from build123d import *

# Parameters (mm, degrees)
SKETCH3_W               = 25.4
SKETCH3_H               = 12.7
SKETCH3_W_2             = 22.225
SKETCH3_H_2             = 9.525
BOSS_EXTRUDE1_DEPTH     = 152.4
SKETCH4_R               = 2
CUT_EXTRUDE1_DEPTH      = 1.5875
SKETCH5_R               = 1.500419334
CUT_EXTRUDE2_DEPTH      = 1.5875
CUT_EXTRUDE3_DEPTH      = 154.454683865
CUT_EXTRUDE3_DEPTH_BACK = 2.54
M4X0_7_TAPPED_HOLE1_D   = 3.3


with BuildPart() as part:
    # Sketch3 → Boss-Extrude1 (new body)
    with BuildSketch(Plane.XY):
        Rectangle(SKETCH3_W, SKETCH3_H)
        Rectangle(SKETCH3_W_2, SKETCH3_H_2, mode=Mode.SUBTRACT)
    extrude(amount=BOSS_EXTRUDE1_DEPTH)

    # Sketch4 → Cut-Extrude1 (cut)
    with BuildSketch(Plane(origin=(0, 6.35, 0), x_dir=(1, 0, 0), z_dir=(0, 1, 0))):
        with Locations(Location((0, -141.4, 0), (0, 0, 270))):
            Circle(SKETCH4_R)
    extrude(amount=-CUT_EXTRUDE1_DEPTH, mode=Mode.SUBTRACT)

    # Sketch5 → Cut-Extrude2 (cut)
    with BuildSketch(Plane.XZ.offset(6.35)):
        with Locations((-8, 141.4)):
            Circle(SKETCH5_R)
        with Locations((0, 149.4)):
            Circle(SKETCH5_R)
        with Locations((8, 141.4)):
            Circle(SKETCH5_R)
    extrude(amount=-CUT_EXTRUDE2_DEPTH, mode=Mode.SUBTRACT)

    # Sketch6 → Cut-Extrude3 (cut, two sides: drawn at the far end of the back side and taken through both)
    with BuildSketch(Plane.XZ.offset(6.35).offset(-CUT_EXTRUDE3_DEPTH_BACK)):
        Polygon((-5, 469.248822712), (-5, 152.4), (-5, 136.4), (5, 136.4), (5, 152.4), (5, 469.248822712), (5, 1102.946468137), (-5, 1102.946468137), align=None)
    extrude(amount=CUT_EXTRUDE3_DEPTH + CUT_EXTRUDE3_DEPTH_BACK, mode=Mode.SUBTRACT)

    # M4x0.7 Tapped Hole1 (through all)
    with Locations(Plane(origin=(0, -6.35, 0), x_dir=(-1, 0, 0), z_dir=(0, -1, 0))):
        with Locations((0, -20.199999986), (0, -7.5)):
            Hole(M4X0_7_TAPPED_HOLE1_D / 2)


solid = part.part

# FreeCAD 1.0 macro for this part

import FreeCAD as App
import Part
import Sketcher

V = App.Vector
Q = App.Units.Quantity


def add_polygon(sketch, points):
    """Adds a closed chain of lines whose ends are joined by coincident constraints."""
    first, n = sketch.GeometryCount, len(points)
    for a, b in zip(points, points[1:] + points[:1]):
        sketch.addGeometry(Part.LineSegment(App.Vector(*a, 0), App.Vector(*b, 0)), False)
    for i in range(n):
        sketch.addConstraint(Sketcher.Constraint("Coincident", first + i, 2, first + (i + 1) % n, 1))

doc = App.newDocument("Part")
body = doc.addObject("PartDesign::Body", "Body")

# Sketch on XY plane
sketch1 = body.newObject("Sketcher::SketchObject", "Sketch")
sketch1.AttachmentSupport = (doc.getObject("XY_Plane"), [""])
sketch1.MapMode = "FlatFace"
add_polygon(sketch1, [(-12.7, 6.35), (-12.7, -6.35), (12.7, -6.35), (12.7, 6.35)])  # lines 0-3
add_polygon(sketch1, [(11.1125, -4.7625), (-11.1125, -4.7625), (-11.1125, 4.7625), (11.1125, 4.7625)])  # lines 4-7
sketch1.addConstraint(Sketcher.Constraint("Vertical", 0))
sketch1.addConstraint(Sketcher.Constraint("Horizontal", 1))
sketch1.addConstraint(Sketcher.Constraint("Vertical", 2))
sketch1.addConstraint(Sketcher.Constraint("Horizontal", 3))
sketch1.addConstraint(Sketcher.Constraint("Horizontal", 4))
sketch1.addConstraint(Sketcher.Constraint("Vertical", 5))
sketch1.addConstraint(Sketcher.Constraint("Horizontal", 6))
sketch1.addConstraint(Sketcher.Constraint("Vertical", 7))
sketch1.addConstraint(Sketcher.Constraint("Symmetric", 0, 2, 2, 2, -1, 1))
sketch1.addConstraint(Sketcher.Constraint("Symmetric", 4, 2, 6, 2, -1, 1))
sketch1.addConstraint(Sketcher.Constraint("DistanceX", 1, 1, 1, 2, Q("1 in")))
sketch1.addConstraint(Sketcher.Constraint("DistanceY", 0, 2, 0, 1, Q("0.5 in")))
sketch1.addConstraint(Sketcher.Constraint("DistanceX", 4, 2, 4, 1, Q("0.875 in")))
sketch1.addConstraint(Sketcher.Constraint("DistanceY", 5, 1, 5, 2, Q("0.375 in")))
pad1 = body.newObject("PartDesign::Pad", "Pad")
pad1.Profile = sketch1
pad1.Length = Q("6 in")

# Sketch on XZ plane
sketch2 = body.newObject("Sketcher::SketchObject", "Sketch001")
sketch2.AttachmentSupport = (doc.getObject("XZ_Plane"), [""])
sketch2.MapMode = "FlatFace"
sketch2.AttachmentOffset = App.Placement(V(0, 0, -0.25 * 25.4), App.Rotation())
sketch2.addGeometry(Part.Circle(V(0, 141.4, 0), V(0, 0, 1), 2), False)
sketch2.addConstraint(Sketcher.Constraint("PointOnObject", 0, 3, -2))
sketch2.addConstraint(Sketcher.Constraint("Diameter", 0, Q("4 mm")))
sketch2.addConstraint(Sketcher.Constraint("DistanceY", -1, 1, 0, 3, Q("141.4 mm")))
pocket1 = body.newObject("PartDesign::Pocket", "Pocket")
pocket1.Profile = sketch2
pocket1.Length = Q("0.0625 in")
pocket1.Reversed = True

# Sketch on XZ plane
sketch3 = body.newObject("Sketcher::SketchObject", "Sketch002")
sketch3.AttachmentSupport = (doc.getObject("XZ_Plane"), [""])
sketch3.MapMode = "FlatFace"
sketch3.AttachmentOffset = App.Placement(V(0, 0, 0.25 * 25.4), App.Rotation())
sketch3.addGeometry(Part.Circle(V(-8, 141.4, 0), V(0, 0, 1), 1.500419), False)
sketch3.addGeometry(Part.Circle(V(0, 149.4, 0), V(0, 0, 1), 1.500419), False)
sketch3.addGeometry(Part.Circle(V(8, 141.4, 0), V(0, 0, 1), 1.500419), False)
sketch3.addConstraint(Sketcher.Constraint("Equal", 0, 1))
sketch3.addConstraint(Sketcher.Constraint("Equal", 1, 2))
sketch3.addConstraint(Sketcher.Constraint("Symmetric", 0, 3, 2, 3, -2))
sketch3.addConstraint(Sketcher.Constraint("PointOnObject", 1, 3, -2))
sketch3.addConstraint(Sketcher.Constraint("Diameter", 0, Q("3.000839 mm")))
sketch3.addConstraint(Sketcher.Constraint("DistanceX", 0, 3, -1, 1, Q("8 mm")))
sketch3.addConstraint(Sketcher.Constraint("DistanceY", -1, 1, 0, 3, Q("141.4 mm")))
sketch3.addConstraint(Sketcher.Constraint("DistanceY", -1, 1, 1, 3, Q("149.4 mm")))
pocket2 = body.newObject("PartDesign::Pocket", "Pocket001")
pocket2.Profile = sketch3
pocket2.Length = Q("0.0625 in")

# Sketch on XZ plane
sketch4 = body.newObject("Sketcher::SketchObject", "Sketch003")
sketch4.AttachmentSupport = (doc.getObject("XZ_Plane"), [""])
sketch4.MapMode = "FlatFace"
sketch4.AttachmentOffset = App.Placement(V(0, 0, 0.25 * 25.4), App.Rotation())
add_polygon(sketch4, [(-5, 136.4), (5, 136.4), (5, 1102.946468), (-5, 1102.946468)])  # lines 0-3
sketch4.addConstraint(Sketcher.Constraint("Horizontal", 0))
sketch4.addConstraint(Sketcher.Constraint("Vertical", 1))
sketch4.addConstraint(Sketcher.Constraint("Horizontal", 2))
sketch4.addConstraint(Sketcher.Constraint("Vertical", 3))
sketch4.addConstraint(Sketcher.Constraint("DistanceX", 0, 1, 0, 2, Q("10 mm")))
sketch4.addConstraint(Sketcher.Constraint("DistanceY", 1, 1, 1, 2, Q("966.546468 mm")))
sketch4.addConstraint(Sketcher.Constraint("DistanceX", -1, 1, 0, 2, Q("5 mm")))
sketch4.addConstraint(Sketcher.Constraint("DistanceY", -1, 1, 0, 2, Q("136.4 mm")))
pocket3 = body.newObject("PartDesign::Pocket", "Pocket002")
pocket3.Profile = sketch4
pocket3.Type = "TwoLengths"
pocket3.Length = 154.454684
pocket3.Length2 = Q("0.1 in")
pocket3.Reversed = True

# Sketch on XZ plane
sketch5 = body.newObject("Sketcher::SketchObject", "Sketch004")
sketch5.AttachmentSupport = (doc.getObject("XZ_Plane"), [""])
sketch5.MapMode = "FlatFace"
sketch5.AttachmentOffset = App.Placement(V(0, 0, 0.25 * 25.4), App.Rotation())
sketch5.addGeometry(Part.Circle(V(0, 20.2, 0), V(0, 0, 1), 1.65), False)
sketch5.addGeometry(Part.Circle(V(0, 7.5, 0), V(0, 0, 1), 1.65), False)
sketch5.addConstraint(Sketcher.Constraint("Equal", 0, 1))
sketch5.addConstraint(Sketcher.Constraint("PointOnObject", 0, 3, -2))
sketch5.addConstraint(Sketcher.Constraint("PointOnObject", 1, 3, -2))
sketch5.addConstraint(Sketcher.Constraint("DistanceY", 1, 3, 0, 3, Q("0.5 in")))
sketch5.addConstraint(Sketcher.Constraint("Diameter", 0, Q("3.3 mm")))
sketch5.addConstraint(Sketcher.Constraint("DistanceY", -1, 1, 0, 3, Q("20.2 mm")))
doc.recompute()
hole = body.newObject("PartDesign::Hole", "Hole")
hole.Profile = sketch5
hole.ThreadType = "None"
hole.Diameter = 3.3
hole.DepthType = "ThroughAll"

doc.recompute()
